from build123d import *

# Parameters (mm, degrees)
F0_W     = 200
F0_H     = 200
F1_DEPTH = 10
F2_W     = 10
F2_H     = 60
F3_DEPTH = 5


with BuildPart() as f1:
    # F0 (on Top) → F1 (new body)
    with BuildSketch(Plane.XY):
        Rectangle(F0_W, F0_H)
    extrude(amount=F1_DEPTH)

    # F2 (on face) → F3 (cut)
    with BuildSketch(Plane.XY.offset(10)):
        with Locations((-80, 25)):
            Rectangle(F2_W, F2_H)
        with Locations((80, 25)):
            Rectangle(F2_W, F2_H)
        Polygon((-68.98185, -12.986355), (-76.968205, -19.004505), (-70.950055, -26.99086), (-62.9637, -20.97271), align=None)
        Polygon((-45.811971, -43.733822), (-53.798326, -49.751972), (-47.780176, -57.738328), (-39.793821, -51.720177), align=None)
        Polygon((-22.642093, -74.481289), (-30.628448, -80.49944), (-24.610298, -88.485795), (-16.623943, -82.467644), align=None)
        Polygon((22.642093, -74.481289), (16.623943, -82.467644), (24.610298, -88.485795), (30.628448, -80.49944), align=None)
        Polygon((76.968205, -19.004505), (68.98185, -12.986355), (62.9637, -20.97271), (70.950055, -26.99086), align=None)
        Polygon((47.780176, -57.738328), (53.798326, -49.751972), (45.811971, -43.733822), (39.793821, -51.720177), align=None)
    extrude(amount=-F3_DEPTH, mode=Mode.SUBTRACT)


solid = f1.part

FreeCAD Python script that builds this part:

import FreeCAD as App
import Part
import Sketcher
from FreeCAD import Vector
Q = App.Units.Quantity


def add_polygon(sketch, points):
    """Adds a closed chain of lines whose ends are joined by coincident constraints."""
    first, n = sketch.GeometryCount, len(points)
    for a, b in zip(points, points[1:] + points[:1]):
        sketch.addGeometry(Part.LineSegment(App.Vector(*a, 0), App.Vector(*b, 0)), False)
    for i in range(n):
        sketch.addConstraint(Sketcher.Constraint("Coincident", first + i, 2, first + (i + 1) % n, 1))

doc = App.newDocument("Part")
body = doc.addObject("PartDesign::Body", "Body")

sketch1 = body.newObject("Sketcher::SketchObject", "Sketch")
sketch1.AttachmentSupport = (doc.getObject("XY_Plane"), [""])
sketch1.MapMode = "FlatFace"
add_polygon(sketch1, [(-100, 100), (-100, -100), (100, -100), (100, 100)])
sketch1.addConstraint(Sketcher.Constraint("Vertical", 0))
sketch1.addConstraint(Sketcher.Constraint("Horizontal", 1))
sketch1.addConstraint(Sketcher.Constraint("Vertical", 2))
sketch1.addConstraint(Sketcher.Constraint("Horizontal", 3))
sketch1.addConstraint(Sketcher.Constraint("Symmetric", 0, 2, 2, 2, -1, 1))
sketch1.addConstraint(Sketcher.Constraint("Equal", 3, 0))
sketch1.addConstraint(Sketcher.Constraint("DistanceX", 1, 1, 1, 2, Q("200 mm")))
pad1 = body.newObject("PartDesign::Pad", "Pad")
pad1.Profile = sketch1
pad1.Length = 10

sketch2 = body.newObject("Sketcher::SketchObject", "Sketch001")
sketch2.AttachmentSupport = (doc.getObject("XY_Plane"), [""])
sketch2.MapMode = "FlatFace"
sketch2.AttachmentOffset = App.Placement(Vector(0, 0, 10), App.Rotation())
add_polygon(sketch2, [(-85, 55), (-85, -5), (-75, -5), (-75, 55)])
add_polygon(sketch2, [(75, 55), (75, -5), (85, -5), (85, 55)])
add_polygon(sketch2, [(-69, -13), (-77, -19), (-71, -27), (-63, -21)])
add_polygon(sketch2, [(-46, -44), (-54, -50), (-48, -58), (-40, -52)])
add_polygon(sketch2, [(-23, -74), (-31, -80), (-25, -88), (-17, -82)])
add_polygon(sketch2, [(23, -74), (17, -82), (25, -88), (31, -80)])
add_polygon(sketch2, [(77, -19), (69, -13), (63, -21), (71, -27)])
add_polygon(sketch2, [(48, -58), (54, -50), (46, -44), (40, -52)])
sketch2.addConstraint(Sketcher.Constraint("Vertical", 0))
sketch2.addConstraint(Sketcher.Constraint("Horizontal", 1))
sketch2.addConstraint(Sketcher.Constraint("Vertical", 2))
sketch2.addConstraint(Sketcher.Constraint("Horizontal", 3))
sketch2.addConstraint(Sketcher.Constraint("Vertical", 4))
sketch2.addConstraint(Sketcher.Constraint("Horizontal", 5))
sketch2.addConstraint(Sketcher.Constraint("Vertical", 6))
sketch2.addConstraint(Sketcher.Constraint("Horizontal", 7))
sketch2.addConstraint(Sketcher.Constraint("Symmetric", 1, 2, 4, 2, -2))
sketch2.addConstraint(Sketcher.Constraint("Symmetric", 3, 2, 6, 2, -2))
sketch2.addConstraint(Sketcher.Constraint("Symmetric", 18, 2, 20, 2, -2))
sketch2.addConstraint(Sketcher.Constraint("Symmetric", 17, 2, 21, 2, -2))
sketch2.addConstraint(Sketcher.Constraint("Symmetric", 16, 2, 22, 2, -2))
sketch2.addConstraint(Sketcher.Constraint("Symmetric", 19, 2, 23, 2, -2))
sketch2.addConstraint(Sketcher.Constraint("Symmetric", 11, 2, 24, 2, -2))
sketch2.addConstraint(Sketcher.Constraint("Symmetric", 10, 2, 25, 2, -2))
sketch2.addConstraint(Sketcher.Constraint("Symmetric", 9, 2, 26, 2, -2))
sketch2.addConstraint(Sketcher.Constraint("Symmetric", 8, 2, 27, 2, -2))
sketch2.addConstraint(Sketcher.Constraint("Symmetric", 12, 2, 28, 2, -2))
sketch2.addConstraint(Sketcher.Constraint("Symmetric", 15, 2, 29, 2, -2))
sketch2.addConstraint(Sketcher.Constraint("Symmetric", 14, 2, 30, 2, -2))
sketch2.addConstraint(Sketcher.Constraint("Symmetric", 13, 2, 31, 2, -2))
sketch2.addConstraint(Sketcher.Constraint("Perpendicular", 8, 9))
sketch2.addConstraint(Sketcher.Constraint("Perpendicular", 9, 10))
sketch2.addConstraint(Sketcher.Constraint("Perpendicular", 10, 11))
sketch2.addConstraint(Sketcher.Constraint("Perpendicular", 11, 12))
sketch2.addConstraint(Sketcher.Constraint("Perpendicular", 12, 13))
sketch2.addConstraint(Sketcher.Constraint("Perpendicular", 13, 14))
sketch2.addConstraint(Sketcher.Constraint("Perpendicular", 14, 15))
sketch2.addConstraint(Sketcher.Constraint("Perpendicular", 15, 16))
sketch2.addConstraint(Sketcher.Constraint("Perpendicular", 16, 17))
sketch2.addConstraint(Sketcher.Constraint("Perpendicular", 17, 18))
sketch2.addConstraint(Sketcher.Constraint("Perpendicular", 18, 19))
sketch2.addConstraint(Sketcher.Constraint("Equal", 8, 9))
sketch2.addConstraint(Sketcher.Constraint("Equal", 11, 12))
sketch2.addConstraint(Sketcher.Constraint("Equal", 12, 13))
sketch2.addConstraint(Sketcher.Constraint("Equal", 15, 16))
sketch2.addConstraint(Sketcher.Constraint("Equal", 16, 17))
sketch2.addConstraint(Sketcher.Constraint("DistanceX", 1, 1, 1, 2, Q("10 mm")))
sketch2.addConstraint(Sketcher.Constraint("DistanceY", 0, 2, 0, 1, Q("60 mm")))
sketch2.addConstraint(Sketcher.Constraint("Angle", 8, Q("-143.000001 deg")))
sketch2.addConstraint(Sketcher.Constraint("Distance", 8, Q("10 mm")))
sketch2.addConstraint(Sketcher.Constraint("DistanceX", 0, 2, -1, 1, Q("85 mm")))
sketch2.addConstraint(Sketcher.Constraint("DistanceY", 0, 2, -1, 1, Q("5 mm")))
sketch2.addConstraint(Sketcher.Constraint("DistanceX", 10, 2, -1, 1, Q("62.9637 mm")))
sketch2.addConstraint(Sketcher.Constraint("DistanceX", 17, 2, -1, 1, Q("24.610298 mm")))
sketch2.addConstraint(Sketcher.Constraint("DistanceY", 9, 2, -1, 1, Q("26.99086 mm")))
sketch2.addConstraint(Sketcher.Constraint("DistanceY", 13, 2, -1, 1, Q("57.738328 mm")))
sketch2.addConstraint(Sketcher.Constraint("DistanceX", 14, 2, -1, 1, Q("39.793821 mm")))
sketch2.addConstraint(Sketcher.Constraint("DistanceY", 16, 2, -1, 1, Q("80.49944 mm")))
pocket1 = body.newObject("PartDesign::Pocket", "Pocket")
pocket1.Profile = sketch2
pocket1.Length = 5

doc.recompute()
